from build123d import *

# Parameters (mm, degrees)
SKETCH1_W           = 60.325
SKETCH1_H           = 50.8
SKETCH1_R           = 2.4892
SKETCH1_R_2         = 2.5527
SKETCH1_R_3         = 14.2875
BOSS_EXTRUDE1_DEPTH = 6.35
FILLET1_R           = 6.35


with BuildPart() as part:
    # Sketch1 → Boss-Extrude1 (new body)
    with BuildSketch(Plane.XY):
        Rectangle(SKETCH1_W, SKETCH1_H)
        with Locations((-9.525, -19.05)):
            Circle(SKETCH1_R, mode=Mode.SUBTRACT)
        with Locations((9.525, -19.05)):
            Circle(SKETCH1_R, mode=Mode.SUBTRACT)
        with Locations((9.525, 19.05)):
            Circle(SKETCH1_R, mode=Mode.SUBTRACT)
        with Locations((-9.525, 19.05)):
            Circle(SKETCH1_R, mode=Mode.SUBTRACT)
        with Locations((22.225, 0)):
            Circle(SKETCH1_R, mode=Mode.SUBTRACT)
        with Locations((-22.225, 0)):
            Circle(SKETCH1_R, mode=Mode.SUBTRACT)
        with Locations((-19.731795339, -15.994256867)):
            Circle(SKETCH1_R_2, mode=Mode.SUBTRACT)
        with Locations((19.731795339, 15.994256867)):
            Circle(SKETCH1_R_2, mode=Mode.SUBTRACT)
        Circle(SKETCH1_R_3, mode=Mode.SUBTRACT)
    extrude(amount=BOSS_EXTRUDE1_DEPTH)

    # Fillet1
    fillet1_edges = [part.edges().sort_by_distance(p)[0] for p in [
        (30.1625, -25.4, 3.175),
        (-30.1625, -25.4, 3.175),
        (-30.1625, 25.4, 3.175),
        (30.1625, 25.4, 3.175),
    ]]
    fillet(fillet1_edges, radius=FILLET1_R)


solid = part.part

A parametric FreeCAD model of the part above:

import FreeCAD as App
import Part
import Sketcher
from FreeCAD import Vector
Q = App.Units.Quantity


def edges_at(feature, points):
    """Names of the edges that pass closest to the given points."""
    edges = feature.Shape.Edges
    near = lambda p: min(range(len(edges)), key=lambda i: edges[i].distToShape(Part.Vertex(*p))[0])
    return sorted({f"Edge{near(p) + 1}" for p in points})

doc = App.newDocument("Part")
body = doc.addObject("PartDesign::Body", "Body")

# Sketch on XY plane
sketch1 = doc.addObject("Sketcher::SketchObject", "Sketch")
body.addObject(sketch1)
sketch1.AttachmentSupport = (doc.XY_Plane, [""])
sketch1.MapMode = "FlatFace"
sketch1.addGeometry([
    Part.LineSegment(Vector(-30.1625, 25.4, 0), Vector(-30.1625, -25.4, 0)),  # 0
    Part.LineSegment(Vector(-30.1625, -25.4, 0), Vector(30.1625, -25.4, 0)),  # 1
    Part.LineSegment(Vector(30.1625, -25.4, 0), Vector(30.1625, 25.4, 0)),  # 2
    Part.LineSegment(Vector(30.1625, 25.4, 0), Vector(-30.1625, 25.4, 0)),  # 3
    Part.Circle(Vector(-19.731795, -15.994257, 0), Vector(0, 0, 1), 2.5527),  # 4
    Part.Circle(Vector(-9.525, -19.05, 0), Vector(0, 0, 1), 2.4892),  # 5
    Part.Circle(Vector(9.525, -19.05, 0), Vector(0, 0, 1), 2.4892),  # 6
    Part.Circle(Vector(-22.225, 0, 0), Vector(0, 0, 1), 2.4892),  # 7
    Part.Circle(Vector(-9.525, 19.05, 0), Vector(0, 0, 1), 2.4892),  # 8
    Part.Circle(Vector(0, 0, 0), Vector(0, 0, 1), 14.2875),  # 9
    Part.Circle(Vector(22.225, 0, 0), Vector(0, 0, 1), 2.4892),  # 10
    Part.Circle(Vector(9.525, 19.05, 0), Vector(0, 0, 1), 2.4892),  # 11
    Part.Circle(Vector(19.731795, 15.994257, 0), Vector(0, 0, 1), 2.5527),  # 12
], False)
sketch1.addConstraint([
    Sketcher.Constraint("Coincident", 0, 2, 1, 1),
    Sketcher.Constraint("Coincident", 1, 2, 2, 1),
    Sketcher.Constraint("Coincident", 2, 2, 3, 1),
    Sketcher.Constraint("Coincident", 3, 2, 0, 1),
    Sketcher.Constraint("Vertical", 0),
    Sketcher.Constraint("Horizontal", 1),
    Sketcher.Constraint("Vertical", 2),
    Sketcher.Constraint("Horizontal", 3),
    Sketcher.Constraint("Coincident", 9, 3, -1, 1),
    Sketcher.Constraint("Equal", 5, 6),
    Sketcher.Constraint("Equal", 6, 7),
    Sketcher.Constraint("Equal", 7, 8),
    Sketcher.Constraint("Equal", 8, 10),
    Sketcher.Constraint("Equal", 10, 11),
    Sketcher.Constraint("Equal", 4, 12),
    Sketcher.Constraint("Symmetric", 6, 3, 8, 3, -1, 1),
    Sketcher.Constraint("Symmetric", 7, 3, 10, 3, -1, 1),
    Sketcher.Constraint("Symmetric", 5, 3, 11, 3, -1, 1),
    Sketcher.Constraint("Symmetric", 4, 3, 12, 3, -1, 1),
    Sketcher.Constraint("Symmetric", 0, 2, 2, 2, -1, 1),
    Sketcher.Constraint("Symmetric", 5, 3, 6, 3, -2),
    Sketcher.Constraint("PointOnObject", 7, 3, -1),
    Sketcher.Constraint("DistanceY", 0, 2, 0, 1, Q("2 in")),
    Sketcher.Constraint("Diameter", 4, Q("0.201 in")),
    Sketcher.Constraint("Diameter", 5, Q("0.196 in")),
    Sketcher.Constraint("Diameter", 9, Q("1.125 in")),
    Sketcher.Constraint("DistanceX", 7, 3, 5, 3, Q("0.5 in")),
    Sketcher.Constraint("DistanceY", 5, 3, 8, 3, Q("1.5 in")),
    Sketcher.Constraint("DistanceX", 1, 1, 1, 2, Q("2.375 in")),
    Sketcher.Constraint("DistanceX", 5, 3, 6, 3, Q("0.75 in")),
    Sketcher.Constraint("DistanceX", 4, 3, -1, 1, 19.731795),
    Sketcher.Constraint("DistanceY", 4, 3, -1, 1, 15.994257),
])
pad1 = doc.addObject("PartDesign::Pad", "Pad")
body.addObject(pad1)
pad1.Profile = sketch1
pad1.Length = Q("0.25 in")
doc.recompute()

fillet = doc.addObject("PartDesign::Fillet", "Fillet")
body.addObject(fillet)
fillet.Base = (pad1, edges_at(pad1, [
    (30.163, -25.4, 3.175),
    (-30.163, -25.4, 3.175),
    (-30.163, 25.4, 3.175),
    (30.163, 25.4, 3.175),
]))
fillet.Radius = Q("0.25 in")

doc.recompute()
